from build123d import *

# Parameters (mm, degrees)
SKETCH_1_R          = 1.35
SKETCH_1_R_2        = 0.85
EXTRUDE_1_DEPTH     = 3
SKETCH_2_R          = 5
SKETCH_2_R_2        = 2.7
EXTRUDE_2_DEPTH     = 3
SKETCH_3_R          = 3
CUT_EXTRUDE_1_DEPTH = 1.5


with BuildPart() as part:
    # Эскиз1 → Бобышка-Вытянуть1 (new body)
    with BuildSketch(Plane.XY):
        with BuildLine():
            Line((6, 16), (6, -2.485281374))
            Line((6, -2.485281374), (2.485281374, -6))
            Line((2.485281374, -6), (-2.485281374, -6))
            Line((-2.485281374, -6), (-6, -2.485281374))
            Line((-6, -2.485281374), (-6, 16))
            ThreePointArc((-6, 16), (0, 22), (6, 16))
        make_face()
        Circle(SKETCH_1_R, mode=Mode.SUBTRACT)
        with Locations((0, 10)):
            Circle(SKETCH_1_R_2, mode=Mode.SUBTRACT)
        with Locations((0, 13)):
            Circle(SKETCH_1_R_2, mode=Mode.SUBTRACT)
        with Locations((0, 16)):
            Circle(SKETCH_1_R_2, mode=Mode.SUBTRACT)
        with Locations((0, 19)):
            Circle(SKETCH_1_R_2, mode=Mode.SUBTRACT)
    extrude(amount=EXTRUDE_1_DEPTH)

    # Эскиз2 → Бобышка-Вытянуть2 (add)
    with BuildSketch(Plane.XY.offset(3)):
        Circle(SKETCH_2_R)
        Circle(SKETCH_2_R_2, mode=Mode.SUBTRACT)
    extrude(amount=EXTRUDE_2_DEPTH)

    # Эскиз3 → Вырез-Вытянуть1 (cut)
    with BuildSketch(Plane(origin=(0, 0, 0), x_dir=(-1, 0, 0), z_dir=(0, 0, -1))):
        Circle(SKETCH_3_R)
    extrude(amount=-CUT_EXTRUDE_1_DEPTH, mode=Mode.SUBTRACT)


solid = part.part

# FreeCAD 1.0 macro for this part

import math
import FreeCAD as App
import Part
import Sketcher

doc = App.newDocument("Part")
body = doc.addObject("PartDesign::Body", "Body")

# Sketch on XY plane
sketch1 = doc.addObject("Sketcher::SketchObject", "Sketch")
body.addObject(sketch1)
sketch1.AttachmentSupport = (doc.XY_Plane, [""])
sketch1.MapMode = "FlatFace"
sketch1.addGeometry([
    Part.LineSegment(App.Vector(6, -2.5, 0), App.Vector(6, 16, 0)),  # 0
    Part.ArcOfCircle(Part.Circle(App.Vector(0, 16, 0), App.Vector(0, 0, 1), 6), math.radians(0), math.radians(180)),  # 1
    Part.LineSegment(App.Vector(-6, 16, 0), App.Vector(-6, -2.5, 0)),  # 2
    Part.LineSegment(App.Vector(-6, -2.5, 0), App.Vector(-2.5, -6, 0)),  # 3
    Part.LineSegment(App.Vector(-2.5, -6, 0), App.Vector(2.5, -6, 0)),  # 4
    Part.LineSegment(App.Vector(2.5, -6, 0), App.Vector(6, -2.5, 0)),  # 5
    Part.Circle(App.Vector(0, 0, 0), App.Vector(0, 0, 1), 1.4),  # 6
    Part.Circle(App.Vector(0, 10, 0), App.Vector(0, 0, 1), 0.8),  # 7
    Part.Circle(App.Vector(0, 13, 0), App.Vector(0, 0, 1), 0.8),  # 8
    Part.Circle(App.Vector(0, 16, 0), App.Vector(0, 0, 1), 0.8),  # 9
    Part.Circle(App.Vector(0, 19, 0), App.Vector(0, 0, 1), 0.8),  # 10
], False)
sketch1.addConstraint([
    Sketcher.Constraint("Tangent", 0, 2, 1, 1),
    Sketcher.Constraint("Tangent", 1, 2, 2, 1),
    Sketcher.Constraint("Coincident", 2, 2, 3, 1),
    Sketcher.Constraint("Coincident", 3, 2, 4, 1),
    Sketcher.Constraint("Coincident", 4, 2, 5, 1),
    Sketcher.Constraint("Coincident", 5, 2, 0, 1),
    Sketcher.Constraint("Vertical", 0),
    Sketcher.Constraint("Vertical", 2),
    Sketcher.Constraint("Horizontal", 4),
    Sketcher.Constraint("Coincident", 6, 3, -1, 1),
    Sketcher.Constraint("Coincident", 9, 3, 1, 3),
    Sketcher.Constraint("Equal", 7, 8),
    Sketcher.Constraint("Equal", 8, 9),
    Sketcher.Constraint("Equal", 9, 10),
    Sketcher.Constraint("Symmetric", 2, 2, 5, 2, -2),
    Sketcher.Constraint("PointOnObject", 7, 3, -2),
    Sketcher.Constraint("PointOnObject", 8, 3, -2),
    Sketcher.Constraint("PointOnObject", 10, 3, -2),
    Sketcher.Constraint("Perpendicular", 3, 5),
    Sketcher.Constraint("Equal", 3, 5),
    Sketcher.Constraint("Radius", 1, 6.0),
    Sketcher.Constraint("Diameter", 6, 2.7),
    Sketcher.Constraint("Diameter", 7, 1.7),
    Sketcher.Constraint("DistanceY", -1, 1, 1, 3, 16.0),
    Sketcher.Constraint("DistanceY", -1, 1, 7, 3, 10.0),
    Sketcher.Constraint("DistanceY", -1, 1, 8, 3, 13.0),
    Sketcher.Constraint("DistanceY", -1, 1, 10, 3, 19.0),
    Sketcher.Constraint("DistanceY", 3, 2, -1, 1, 6.0),
    Sketcher.Constraint("DistanceY", 0, 1, 0, 2, 18.485281),
])
pad1 = doc.addObject("PartDesign::Pad", "Pad")
body.addObject(pad1)
pad1.Profile = sketch1
pad1.Length = 3

# Sketch on XY plane
sketch2 = doc.addObject("Sketcher::SketchObject", "Sketch001")
body.addObject(sketch2)
sketch2.AttachmentSupport = (doc.XY_Plane, [""])
sketch2.MapMode = "FlatFace"
sketch2.AttachmentOffset = App.Placement(App.Vector(0, 0, 3), App.Rotation())
sketch2.addGeometry([
    Part.Circle(App.Vector(0, 0, 0), App.Vector(0, 0, 1), 5),
    Part.Circle(App.Vector(0, 0, 0), App.Vector(0, 0, 1), 2.7),
], False)
sketch2.addConstraint([
    Sketcher.Constraint("Coincident", 0, 3, -1, 1),
    Sketcher.Constraint("Coincident", 1, 3, -1, 1),
    Sketcher.Constraint("Diameter", 0, 10.0),
    Sketcher.Constraint("Diameter", 1, 5.4),
])
pad2 = doc.addObject("PartDesign::Pad", "Pad001")
body.addObject(pad2)
pad2.Profile = sketch2
pad2.Length = 3

# Sketch on XY plane
sketch3 = doc.addObject("Sketcher::SketchObject", "Sketch002")
body.addObject(sketch3)
sketch3.AttachmentSupport = (doc.XY_Plane, [""])
sketch3.MapMode = "FlatFace"
sketch3.addGeometry(Part.Circle(App.Vector(0, 0, 0), App.Vector(0, 0, 1), 3), False)
sketch3.addConstraint([
    Sketcher.Constraint("Coincident", 0, 3, -1, 1),
    Sketcher.Constraint("Diameter", 0, 6.0),
])
pocket1 = doc.addObject("PartDesign::Pocket", "Pocket")
body.addObject(pocket1)
pocket1.Profile = sketch3
pocket1.Length = 1.5
pocket1.Reversed = True

doc.recompute()
